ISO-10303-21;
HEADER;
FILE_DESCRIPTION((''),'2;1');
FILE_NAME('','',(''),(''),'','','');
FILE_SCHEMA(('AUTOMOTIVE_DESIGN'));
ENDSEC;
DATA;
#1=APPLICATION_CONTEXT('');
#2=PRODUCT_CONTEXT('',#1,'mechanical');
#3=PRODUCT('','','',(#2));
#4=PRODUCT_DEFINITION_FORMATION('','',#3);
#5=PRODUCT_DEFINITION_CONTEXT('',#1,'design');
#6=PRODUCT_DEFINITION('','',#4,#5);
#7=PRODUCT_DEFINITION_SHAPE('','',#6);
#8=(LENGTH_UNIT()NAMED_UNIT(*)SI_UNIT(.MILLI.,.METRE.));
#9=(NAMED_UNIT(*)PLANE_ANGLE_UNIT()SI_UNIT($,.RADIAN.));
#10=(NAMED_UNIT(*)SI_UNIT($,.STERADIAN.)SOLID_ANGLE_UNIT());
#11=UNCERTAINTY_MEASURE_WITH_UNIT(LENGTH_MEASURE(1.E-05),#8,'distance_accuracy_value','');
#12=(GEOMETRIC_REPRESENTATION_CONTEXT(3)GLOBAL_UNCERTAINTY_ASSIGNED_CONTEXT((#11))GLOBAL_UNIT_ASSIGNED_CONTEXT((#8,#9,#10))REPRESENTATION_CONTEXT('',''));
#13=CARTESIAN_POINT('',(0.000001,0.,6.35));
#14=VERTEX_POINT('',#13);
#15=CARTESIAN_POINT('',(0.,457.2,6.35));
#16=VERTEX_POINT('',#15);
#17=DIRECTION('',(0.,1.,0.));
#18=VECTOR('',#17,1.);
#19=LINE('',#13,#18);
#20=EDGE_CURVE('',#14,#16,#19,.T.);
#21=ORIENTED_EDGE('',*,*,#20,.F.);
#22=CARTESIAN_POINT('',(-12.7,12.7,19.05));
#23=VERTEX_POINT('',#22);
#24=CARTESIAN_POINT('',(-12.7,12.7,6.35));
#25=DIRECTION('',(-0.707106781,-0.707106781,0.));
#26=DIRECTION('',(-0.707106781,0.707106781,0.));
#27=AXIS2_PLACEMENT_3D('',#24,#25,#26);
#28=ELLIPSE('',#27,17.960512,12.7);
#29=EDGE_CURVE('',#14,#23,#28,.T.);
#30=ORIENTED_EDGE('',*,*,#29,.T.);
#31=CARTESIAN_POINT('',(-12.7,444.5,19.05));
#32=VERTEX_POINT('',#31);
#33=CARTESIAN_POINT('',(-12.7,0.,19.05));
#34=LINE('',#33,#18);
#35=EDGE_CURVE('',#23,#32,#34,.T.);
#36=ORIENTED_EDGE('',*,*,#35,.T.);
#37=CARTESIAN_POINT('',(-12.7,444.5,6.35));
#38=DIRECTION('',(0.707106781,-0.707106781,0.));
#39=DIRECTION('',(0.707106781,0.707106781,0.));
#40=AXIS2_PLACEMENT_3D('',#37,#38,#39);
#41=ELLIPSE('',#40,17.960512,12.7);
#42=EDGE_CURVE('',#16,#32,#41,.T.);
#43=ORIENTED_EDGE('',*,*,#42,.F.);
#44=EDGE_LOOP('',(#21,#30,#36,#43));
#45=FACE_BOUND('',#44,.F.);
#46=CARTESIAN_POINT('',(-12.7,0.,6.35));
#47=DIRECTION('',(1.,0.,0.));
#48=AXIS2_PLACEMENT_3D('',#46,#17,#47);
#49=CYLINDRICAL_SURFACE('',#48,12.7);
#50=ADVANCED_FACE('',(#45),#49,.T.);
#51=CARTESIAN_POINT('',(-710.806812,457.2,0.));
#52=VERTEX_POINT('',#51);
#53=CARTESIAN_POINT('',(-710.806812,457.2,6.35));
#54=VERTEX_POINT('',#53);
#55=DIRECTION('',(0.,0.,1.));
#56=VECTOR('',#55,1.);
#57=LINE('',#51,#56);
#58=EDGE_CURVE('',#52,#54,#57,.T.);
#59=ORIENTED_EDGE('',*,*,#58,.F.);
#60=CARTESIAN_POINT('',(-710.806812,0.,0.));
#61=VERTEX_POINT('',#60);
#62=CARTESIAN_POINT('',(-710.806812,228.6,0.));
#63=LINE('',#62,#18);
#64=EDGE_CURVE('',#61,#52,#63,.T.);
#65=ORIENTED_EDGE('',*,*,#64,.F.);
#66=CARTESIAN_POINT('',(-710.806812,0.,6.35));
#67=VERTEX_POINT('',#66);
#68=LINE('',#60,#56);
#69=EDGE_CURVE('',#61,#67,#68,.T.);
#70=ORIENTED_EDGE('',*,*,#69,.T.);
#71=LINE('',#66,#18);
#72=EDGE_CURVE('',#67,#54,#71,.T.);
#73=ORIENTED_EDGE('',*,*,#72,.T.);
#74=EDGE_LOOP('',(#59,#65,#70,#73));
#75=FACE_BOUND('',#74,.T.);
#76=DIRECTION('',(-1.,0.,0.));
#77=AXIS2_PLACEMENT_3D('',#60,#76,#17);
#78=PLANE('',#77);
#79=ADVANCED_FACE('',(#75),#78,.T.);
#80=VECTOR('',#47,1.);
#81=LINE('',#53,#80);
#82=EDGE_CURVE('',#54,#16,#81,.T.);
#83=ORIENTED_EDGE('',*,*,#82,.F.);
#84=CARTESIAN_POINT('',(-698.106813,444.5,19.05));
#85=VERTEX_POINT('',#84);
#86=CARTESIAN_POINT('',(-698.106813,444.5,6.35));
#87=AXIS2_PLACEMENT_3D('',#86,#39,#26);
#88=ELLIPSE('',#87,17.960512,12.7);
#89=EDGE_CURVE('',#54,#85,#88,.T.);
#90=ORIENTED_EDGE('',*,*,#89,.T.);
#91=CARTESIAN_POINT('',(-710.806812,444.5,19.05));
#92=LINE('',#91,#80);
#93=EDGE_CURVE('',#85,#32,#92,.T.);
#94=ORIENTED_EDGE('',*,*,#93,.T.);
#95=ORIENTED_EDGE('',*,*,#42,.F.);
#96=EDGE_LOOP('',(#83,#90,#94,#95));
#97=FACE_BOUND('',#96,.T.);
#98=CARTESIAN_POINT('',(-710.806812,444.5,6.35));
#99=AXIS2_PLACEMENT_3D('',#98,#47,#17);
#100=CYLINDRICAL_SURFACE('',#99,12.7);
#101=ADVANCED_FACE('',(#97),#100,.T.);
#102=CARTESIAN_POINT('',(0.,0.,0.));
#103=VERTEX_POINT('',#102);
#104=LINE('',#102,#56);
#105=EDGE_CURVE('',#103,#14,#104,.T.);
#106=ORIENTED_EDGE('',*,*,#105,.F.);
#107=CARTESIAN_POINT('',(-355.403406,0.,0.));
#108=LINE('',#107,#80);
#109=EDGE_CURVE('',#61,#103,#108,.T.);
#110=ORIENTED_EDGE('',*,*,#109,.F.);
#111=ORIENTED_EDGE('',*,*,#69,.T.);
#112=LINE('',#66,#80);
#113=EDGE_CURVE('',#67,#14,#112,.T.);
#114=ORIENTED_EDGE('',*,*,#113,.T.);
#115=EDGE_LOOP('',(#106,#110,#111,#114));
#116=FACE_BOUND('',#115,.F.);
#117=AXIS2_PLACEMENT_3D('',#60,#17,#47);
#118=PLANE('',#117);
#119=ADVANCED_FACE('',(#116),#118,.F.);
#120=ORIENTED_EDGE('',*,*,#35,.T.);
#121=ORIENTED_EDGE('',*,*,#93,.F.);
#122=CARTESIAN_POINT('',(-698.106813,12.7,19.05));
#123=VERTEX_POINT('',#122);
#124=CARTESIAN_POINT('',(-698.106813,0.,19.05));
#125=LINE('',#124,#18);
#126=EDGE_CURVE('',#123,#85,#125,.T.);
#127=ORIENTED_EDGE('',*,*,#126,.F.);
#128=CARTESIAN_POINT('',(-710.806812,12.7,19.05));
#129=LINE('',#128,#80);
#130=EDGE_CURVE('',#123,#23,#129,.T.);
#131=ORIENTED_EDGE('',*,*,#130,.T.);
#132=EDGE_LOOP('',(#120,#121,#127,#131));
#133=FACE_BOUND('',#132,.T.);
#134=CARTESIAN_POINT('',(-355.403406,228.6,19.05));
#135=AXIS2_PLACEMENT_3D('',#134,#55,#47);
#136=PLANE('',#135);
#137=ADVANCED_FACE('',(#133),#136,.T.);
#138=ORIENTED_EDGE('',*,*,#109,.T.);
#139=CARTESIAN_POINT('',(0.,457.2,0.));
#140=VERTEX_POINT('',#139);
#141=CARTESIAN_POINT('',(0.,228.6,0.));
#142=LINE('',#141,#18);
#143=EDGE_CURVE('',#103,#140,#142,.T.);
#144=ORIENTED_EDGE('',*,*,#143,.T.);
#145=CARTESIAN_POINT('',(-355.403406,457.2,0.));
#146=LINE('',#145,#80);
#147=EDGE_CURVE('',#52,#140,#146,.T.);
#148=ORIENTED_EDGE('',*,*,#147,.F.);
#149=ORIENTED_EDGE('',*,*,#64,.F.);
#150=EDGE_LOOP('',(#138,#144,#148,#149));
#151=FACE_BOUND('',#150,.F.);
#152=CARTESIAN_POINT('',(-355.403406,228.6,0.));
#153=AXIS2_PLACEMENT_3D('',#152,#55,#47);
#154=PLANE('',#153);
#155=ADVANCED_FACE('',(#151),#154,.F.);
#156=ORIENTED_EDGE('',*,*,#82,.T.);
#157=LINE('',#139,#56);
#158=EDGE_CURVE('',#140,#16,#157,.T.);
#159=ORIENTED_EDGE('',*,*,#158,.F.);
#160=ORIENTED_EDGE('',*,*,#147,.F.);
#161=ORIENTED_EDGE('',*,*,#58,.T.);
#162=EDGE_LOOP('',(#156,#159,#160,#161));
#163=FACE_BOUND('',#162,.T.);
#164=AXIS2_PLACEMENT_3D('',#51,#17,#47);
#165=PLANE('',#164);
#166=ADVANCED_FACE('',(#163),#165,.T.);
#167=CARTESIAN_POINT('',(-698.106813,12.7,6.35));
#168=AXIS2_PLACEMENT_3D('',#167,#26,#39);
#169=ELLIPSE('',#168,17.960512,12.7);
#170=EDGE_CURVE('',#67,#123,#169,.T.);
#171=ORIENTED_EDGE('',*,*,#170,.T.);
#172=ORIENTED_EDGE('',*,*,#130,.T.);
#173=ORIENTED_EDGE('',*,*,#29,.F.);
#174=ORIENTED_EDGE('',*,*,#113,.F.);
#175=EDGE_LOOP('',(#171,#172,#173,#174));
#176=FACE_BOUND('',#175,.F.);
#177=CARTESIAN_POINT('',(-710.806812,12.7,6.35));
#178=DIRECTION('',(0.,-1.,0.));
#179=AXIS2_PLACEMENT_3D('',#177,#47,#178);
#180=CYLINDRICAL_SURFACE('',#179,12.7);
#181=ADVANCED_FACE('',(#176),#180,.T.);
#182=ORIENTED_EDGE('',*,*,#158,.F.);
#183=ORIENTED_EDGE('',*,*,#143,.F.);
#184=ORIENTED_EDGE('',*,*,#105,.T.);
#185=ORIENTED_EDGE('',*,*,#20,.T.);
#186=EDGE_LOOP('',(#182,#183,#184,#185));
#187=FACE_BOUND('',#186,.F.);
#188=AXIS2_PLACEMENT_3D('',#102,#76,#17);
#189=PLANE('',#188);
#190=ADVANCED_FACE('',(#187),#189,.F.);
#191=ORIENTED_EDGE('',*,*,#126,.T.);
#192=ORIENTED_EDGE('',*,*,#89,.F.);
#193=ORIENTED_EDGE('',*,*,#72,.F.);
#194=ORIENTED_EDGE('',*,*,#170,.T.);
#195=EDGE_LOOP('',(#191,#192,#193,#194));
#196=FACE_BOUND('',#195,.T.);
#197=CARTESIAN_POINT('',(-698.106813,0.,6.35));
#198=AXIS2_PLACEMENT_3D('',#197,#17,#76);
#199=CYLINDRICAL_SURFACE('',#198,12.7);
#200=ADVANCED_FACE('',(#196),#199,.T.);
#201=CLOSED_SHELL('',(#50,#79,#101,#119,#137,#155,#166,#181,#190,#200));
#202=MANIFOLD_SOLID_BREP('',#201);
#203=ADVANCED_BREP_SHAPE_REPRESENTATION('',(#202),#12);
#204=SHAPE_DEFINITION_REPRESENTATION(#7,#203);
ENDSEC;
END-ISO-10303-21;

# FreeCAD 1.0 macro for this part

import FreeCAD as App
import Part
import Sketcher

V = App.Vector
Q = App.Units.Quantity


def edges_at(feature, points):
    """Names of the edges that pass closest to the given points."""
    edges = feature.Shape.Edges
    near = lambda p: min(range(len(edges)), key=lambda i: edges[i].distToShape(Part.Vertex(*p))[0])
    return sorted({f"Edge{near(p) + 1}" for p in points})


def add_polygon(sketch, points):
    """Adds a closed chain of lines whose ends are joined by coincident constraints."""
    first, n = sketch.GeometryCount, len(points)
    for a, b in zip(points, points[1:] + points[:1]):
        sketch.addGeometry(Part.LineSegment(App.Vector(*a, 0), App.Vector(*b, 0)), False)
    for i in range(n):
        sketch.addConstraint(Sketcher.Constraint("Coincident", first + i, 2, first + (i + 1) % n, 1))

doc = App.newDocument("Part")
body = doc.addObject("PartDesign::Body", "Body")

sketch1 = doc.addObject("Sketcher::SketchObject", "Sketch")
body.addObject(sketch1)
sketch1.AttachmentSupport = (doc.XY_Plane, [""])
sketch1.MapMode = "FlatFace"
add_polygon(sketch1, [(-711, 457), (-711, 0), (0, 0), (0, 457)])
sketch1.addConstraint(Sketcher.Constraint("Vertical", 0))
sketch1.addConstraint(Sketcher.Constraint("Horizontal", 1))
sketch1.addConstraint(Sketcher.Constraint("Vertical", 2))
sketch1.addConstraint(Sketcher.Constraint("Horizontal", 3))
sketch1.addConstraint(Sketcher.Constraint("Coincident", 1, 2, -1, 1))
sketch1.addConstraint(Sketcher.Constraint("DistanceY", 0, 2, 0, 1, Q("18 in")))
sketch1.addConstraint(Sketcher.Constraint("DistanceX", 1, 1, 1, 2, 710.806813))
pad1 = doc.addObject("PartDesign::Pad", "Pad")
body.addObject(pad1)
pad1.Profile = sketch1
pad1.Length = Q("0.75 in")
doc.recompute()

fillet = doc.addObject("PartDesign::Fillet", "Fillet")
body.addObject(fillet)
fillet.Base = (pad1, edges_at(pad1, [
    (-710.807, 228.6, 19.05),
    (-355.403, 457.2, 19.05),
    (0, 228.6, 19.05),
    (-355.403, 0, 19.05),
]))
fillet.Radius = Q("0.5 in")

doc.recompute()
